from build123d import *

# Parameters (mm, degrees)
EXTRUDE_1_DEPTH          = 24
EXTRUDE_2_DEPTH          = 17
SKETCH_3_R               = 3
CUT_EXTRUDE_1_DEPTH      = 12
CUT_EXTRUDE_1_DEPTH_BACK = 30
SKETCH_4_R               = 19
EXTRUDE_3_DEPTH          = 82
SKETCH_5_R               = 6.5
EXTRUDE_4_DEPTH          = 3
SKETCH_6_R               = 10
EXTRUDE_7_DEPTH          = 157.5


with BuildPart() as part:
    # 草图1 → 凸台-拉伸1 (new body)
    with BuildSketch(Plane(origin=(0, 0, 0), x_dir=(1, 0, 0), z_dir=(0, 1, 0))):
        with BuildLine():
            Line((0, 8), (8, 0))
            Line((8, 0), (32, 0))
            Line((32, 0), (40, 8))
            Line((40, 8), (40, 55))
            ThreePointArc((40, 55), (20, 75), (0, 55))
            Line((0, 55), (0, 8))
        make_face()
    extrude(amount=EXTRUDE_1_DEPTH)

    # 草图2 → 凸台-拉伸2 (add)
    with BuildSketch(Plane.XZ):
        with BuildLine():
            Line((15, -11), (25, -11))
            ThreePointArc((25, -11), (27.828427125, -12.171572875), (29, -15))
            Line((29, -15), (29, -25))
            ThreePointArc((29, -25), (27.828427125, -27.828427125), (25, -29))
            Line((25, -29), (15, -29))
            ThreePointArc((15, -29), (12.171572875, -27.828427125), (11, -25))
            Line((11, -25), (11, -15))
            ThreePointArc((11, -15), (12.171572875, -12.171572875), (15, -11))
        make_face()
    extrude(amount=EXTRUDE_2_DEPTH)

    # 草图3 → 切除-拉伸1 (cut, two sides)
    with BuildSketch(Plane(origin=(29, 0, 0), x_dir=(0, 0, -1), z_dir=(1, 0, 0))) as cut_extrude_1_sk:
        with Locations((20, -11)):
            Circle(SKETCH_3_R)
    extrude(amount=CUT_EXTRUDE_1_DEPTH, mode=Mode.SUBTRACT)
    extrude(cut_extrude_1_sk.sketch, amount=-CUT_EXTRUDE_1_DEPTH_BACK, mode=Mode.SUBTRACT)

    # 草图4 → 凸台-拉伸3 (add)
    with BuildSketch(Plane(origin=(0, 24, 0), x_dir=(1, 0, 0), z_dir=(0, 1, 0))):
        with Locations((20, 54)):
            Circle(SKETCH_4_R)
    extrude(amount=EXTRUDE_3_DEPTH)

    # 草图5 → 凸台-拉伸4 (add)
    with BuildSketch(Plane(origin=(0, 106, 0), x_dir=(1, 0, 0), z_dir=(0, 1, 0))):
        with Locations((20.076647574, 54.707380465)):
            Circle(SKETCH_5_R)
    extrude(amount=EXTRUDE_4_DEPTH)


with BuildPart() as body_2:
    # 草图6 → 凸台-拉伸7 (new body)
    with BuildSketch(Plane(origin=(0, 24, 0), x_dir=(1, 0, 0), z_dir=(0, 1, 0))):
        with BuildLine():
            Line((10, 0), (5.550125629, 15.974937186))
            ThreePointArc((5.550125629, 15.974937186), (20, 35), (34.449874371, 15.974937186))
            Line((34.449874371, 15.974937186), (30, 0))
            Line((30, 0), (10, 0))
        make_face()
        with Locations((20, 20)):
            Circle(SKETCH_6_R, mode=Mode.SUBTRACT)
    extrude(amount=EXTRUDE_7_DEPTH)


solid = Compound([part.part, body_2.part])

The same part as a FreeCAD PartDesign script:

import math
import FreeCAD as App
import Part
import Sketcher

V = App.Vector

doc = App.newDocument("Part")
body = doc.addObject("PartDesign::Body", "Body")

# Sketch on XZ plane
sketch1 = body.newObject("Sketcher::SketchObject", "Sketch")
sketch1.AttachmentSupport = (doc.getObject("XZ_Plane"), [""])
sketch1.MapMode = "FlatFace"
sketch1.addGeometry(Part.LineSegment(V(0, -8, 0), V(8, 0, 0)), False)
sketch1.addGeometry(Part.LineSegment(V(8, 0, 0), V(32, 0, 0)), False)
sketch1.addGeometry(Part.LineSegment(V(32, 0, 0), V(40, -8, 0)), False)
sketch1.addGeometry(Part.LineSegment(V(40, -8, 0), V(40, -55, 0)), False)
sketch1.addGeometry(Part.ArcOfCircle(Part.Circle(V(20, -55, 0), V(0, 0, 1), 20), math.radians(180), math.radians(360)), False)
sketch1.addGeometry(Part.LineSegment(V(0, -55, 0), V(0, -8, 0)), False)
sketch1.addConstraint(Sketcher.Constraint("Coincident", 0, 2, 1, 1))
sketch1.addConstraint(Sketcher.Constraint("Coincident", 1, 2, 2, 1))
sketch1.addConstraint(Sketcher.Constraint("Coincident", 2, 2, 3, 1))
sketch1.addConstraint(Sketcher.Constraint("Tangent", 3, 2, 4, 2))
sketch1.addConstraint(Sketcher.Constraint("Tangent", 4, 1, 5, 1))
sketch1.addConstraint(Sketcher.Constraint("Coincident", 5, 2, 0, 1))
sketch1.addConstraint(Sketcher.Constraint("Horizontal", 1))
sketch1.addConstraint(Sketcher.Constraint("Vertical", 3))
sketch1.addConstraint(Sketcher.Constraint("Vertical", 5))
sketch1.addConstraint(Sketcher.Constraint("PointOnObject", 0, 2, -1))
sketch1.addConstraint(Sketcher.Constraint("PointOnObject", 4, 1, -2))
sketch1.addConstraint(Sketcher.Constraint("Perpendicular", 0, 2))
sketch1.addConstraint(Sketcher.Constraint("Horizontal", 2, 2, 5, 2))
sketch1.addConstraint(Sketcher.Constraint("Equal", 0, 2))
sketch1.addConstraint(Sketcher.Constraint("Radius", 4, 20.0))
sketch1.addConstraint(Sketcher.Constraint("DistanceX", 1, 1, 1, 2, 24.0))
sketch1.addConstraint(Sketcher.Constraint("DistanceY", 3, 2, 3, 1, 47.0))
pad1 = body.newObject("PartDesign::Pad", "Pad")
pad1.Profile = sketch1
pad1.Length = 24
pad1.Reversed = True

# Sketch on XZ plane
sketch2 = body.newObject("Sketcher::SketchObject", "Sketch001")
sketch2.AttachmentSupport = (doc.getObject("XZ_Plane"), [""])
sketch2.MapMode = "FlatFace"
sketch2.addGeometry(Part.LineSegment(V(25, -11, 0), V(15, -11, 0)), False)
sketch2.addGeometry(Part.ArcOfCircle(Part.Circle(V(15, -15, 0), V(0, 0, 1), 4), math.radians(90), math.radians(180)), False)
sketch2.addGeometry(Part.LineSegment(V(11, -15, 0), V(11, -25, 0)), False)
sketch2.addGeometry(Part.ArcOfCircle(Part.Circle(V(15, -25, 0), V(0, 0, 1), 4), math.radians(180), math.radians(270)), False)
sketch2.addGeometry(Part.LineSegment(V(15, -29, 0), V(25, -29, 0)), False)
sketch2.addGeometry(Part.ArcOfCircle(Part.Circle(V(25, -25, 0), V(0, 0, 1), 4), math.radians(-90), math.radians(0)), False)
sketch2.addGeometry(Part.LineSegment(V(29, -25, 0), V(29, -15, 0)), False)
sketch2.addGeometry(Part.ArcOfCircle(Part.Circle(V(25, -15, 0), V(0, 0, 1), 4), math.radians(0), math.radians(90)), False)
sketch2.addConstraint(Sketcher.Constraint("Tangent", 0, 2, 1, 1))
sketch2.addConstraint(Sketcher.Constraint("Tangent", 1, 2, 2, 1))
sketch2.addConstraint(Sketcher.Constraint("Tangent", 2, 2, 3, 1))
sketch2.addConstraint(Sketcher.Constraint("Tangent", 3, 2, 4, 1))
sketch2.addConstraint(Sketcher.Constraint("Tangent", 4, 2, 5, 1))
sketch2.addConstraint(Sketcher.Constraint("Tangent", 5, 2, 6, 1))
sketch2.addConstraint(Sketcher.Constraint("Tangent", 6, 2, 7, 1))
sketch2.addConstraint(Sketcher.Constraint("Tangent", 7, 2, 0, 1))
sketch2.addConstraint(Sketcher.Constraint("Horizontal", 0))
sketch2.addConstraint(Sketcher.Constraint("Vertical", 2))
sketch2.addConstraint(Sketcher.Constraint("Horizontal", 4))
sketch2.addConstraint(Sketcher.Constraint("Vertical", 6))
sketch2.addConstraint(Sketcher.Constraint("Equal", 1, 3))
sketch2.addConstraint(Sketcher.Constraint("Equal", 3, 5))
sketch2.addConstraint(Sketcher.Constraint("Equal", 5, 7))
sketch2.addConstraint(Sketcher.Constraint("Equal", 4, 2))
sketch2.addConstraint(Sketcher.Constraint("Radius", 1, 4.0))
sketch2.addConstraint(Sketcher.Constraint("DistanceX", 0, 2, 0, 1, 10.0))
sketch2.addConstraint(Sketcher.Constraint("DistanceX", -1, 1, 1, 3, 15.0))
sketch2.addConstraint(Sketcher.Constraint("DistanceY", 1, 3, -1, 1, 15.0))
pad2 = body.newObject("PartDesign::Pad", "Pad001")
pad2.Profile = sketch2
pad2.Length = 17

# Sketch on YZ plane
sketch3 = body.newObject("Sketcher::SketchObject", "Sketch002")
sketch3.AttachmentSupport = (doc.getObject("YZ_Plane"), [""])
sketch3.MapMode = "FlatFace"
sketch3.AttachmentOffset = App.Placement(V(0, 0, 29), App.Rotation())
sketch3.addGeometry(Part.Circle(V(-11, -20, 0), V(0, 0, 1), 3), False)
sketch3.addConstraint(Sketcher.Constraint("Diameter", 0, 6.0))
sketch3.addConstraint(Sketcher.Constraint("DistanceX", 0, 3, -1, 1, 11.0))
sketch3.addConstraint(Sketcher.Constraint("DistanceY", 0, 3, -1, 1, 20.0))
pocket1 = body.newObject("PartDesign::Pocket", "Pocket")
pocket1.Profile = sketch3
pocket1.Type = "ThroughAll"
pocket1.Midplane = True

# Sketch on XZ plane
sketch4 = body.newObject("Sketcher::SketchObject", "Sketch003")
sketch4.AttachmentSupport = (doc.getObject("XZ_Plane"), [""])
sketch4.MapMode = "FlatFace"
sketch4.AttachmentOffset = App.Placement(V(0, 0, -24), App.Rotation())
sketch4.addGeometry(Part.Circle(V(20, -54, 0), V(0, 0, 1), 19), False)
sketch4.addConstraint(Sketcher.Constraint("Diameter", 0, 38.0))
sketch4.addConstraint(Sketcher.Constraint("DistanceX", -1, 1, 0, 3, 20.0))
sketch4.addConstraint(Sketcher.Constraint("DistanceY", 0, 3, -1, 1, 54.0))
pad3 = body.newObject("PartDesign::Pad", "Pad002")
pad3.Profile = sketch4
pad3.Length = 82
pad3.Reversed = True

# Sketch on XZ plane
sketch5 = body.newObject("Sketcher::SketchObject", "Sketch004")
sketch5.AttachmentSupport = (doc.getObject("XZ_Plane"), [""])
sketch5.MapMode = "FlatFace"
sketch5.AttachmentOffset = App.Placement(V(0, 0, -106), App.Rotation())
sketch5.addGeometry(Part.Circle(V(20, -55, 0), V(0, 0, 1), 6), False)
sketch5.addConstraint(Sketcher.Constraint("Diameter", 0, 13.0))
sketch5.addConstraint(Sketcher.Constraint("DistanceY", 0, 3, -1, 1, 54.70738))
sketch5.addConstraint(Sketcher.Constraint("DistanceX", -1, 1, 0, 3, 20.076648))
pad4 = body.newObject("PartDesign::Pad", "Pad003")
pad4.Profile = sketch5
pad4.Length = 3
pad4.Reversed = True
body2 = doc.addObject("PartDesign::Body", "Body001")

# Sketch on XZ plane
sketch6 = body2.newObject("Sketcher::SketchObject", "Sketch005")
sketch6.AttachmentSupport = (doc.getObject("XZ_Plane001"), [""])
sketch6.MapMode = "FlatFace"
sketch6.AttachmentOffset = App.Placement(V(0, 0, -24), App.Rotation())
sketch6.addGeometry(Part.LineSegment(V(6, -16, 0), V(10, 0, 0)), False)
sketch6.addGeometry(Part.LineSegment(V(10, 0, 0), V(30, 0, 0)), False)
sketch6.addGeometry(Part.LineSegment(V(30, 0, 0), V(34, -16, 0)), False)
sketch6.addGeometry(Part.ArcOfCircle(Part.Circle(V(20, -20, 0), V(0, 0, 1), 15), math.radians(164), math.radians(376)), False)
sketch6.addGeometry(Part.Circle(V(20, -20, 0), V(0, 0, 1), 10), False)
sketch6.addConstraint(Sketcher.Constraint("Coincident", 0, 2, 1, 1))
sketch6.addConstraint(Sketcher.Constraint("Coincident", 1, 2, 2, 1))
sketch6.addConstraint(Sketcher.Constraint("Tangent", 2, 2, 3, 2))
sketch6.addConstraint(Sketcher.Constraint("Tangent", 3, 1, 0, 1))
sketch6.addConstraint(Sketcher.Constraint("Horizontal", 1))
sketch6.addConstraint(Sketcher.Constraint("Coincident", 4, 3, 3, 3))
sketch6.addConstraint(Sketcher.Constraint("PointOnObject", 0, 2, -1))
sketch6.addConstraint(Sketcher.Constraint("Horizontal", 2, 2, 3, 1))
sketch6.addConstraint(Sketcher.Constraint("Diameter", 4, 20.0))
sketch6.addConstraint(Sketcher.Constraint("Radius", 3, 15.0))
sketch6.addConstraint(Sketcher.Constraint("DistanceX", 1, 1, 1, 2, 20.0))
sketch6.addConstraint(Sketcher.Constraint("DistanceX", -1, 1, 3, 3, 20.0))
sketch6.addConstraint(Sketcher.Constraint("DistanceY", 3, 3, -1, 1, 20.0))
pad5 = body2.newObject("PartDesign::Pad", "Pad004")
pad5.Profile = sketch6
pad5.Length = 157.5
pad5.Reversed = True

doc.recompute()
